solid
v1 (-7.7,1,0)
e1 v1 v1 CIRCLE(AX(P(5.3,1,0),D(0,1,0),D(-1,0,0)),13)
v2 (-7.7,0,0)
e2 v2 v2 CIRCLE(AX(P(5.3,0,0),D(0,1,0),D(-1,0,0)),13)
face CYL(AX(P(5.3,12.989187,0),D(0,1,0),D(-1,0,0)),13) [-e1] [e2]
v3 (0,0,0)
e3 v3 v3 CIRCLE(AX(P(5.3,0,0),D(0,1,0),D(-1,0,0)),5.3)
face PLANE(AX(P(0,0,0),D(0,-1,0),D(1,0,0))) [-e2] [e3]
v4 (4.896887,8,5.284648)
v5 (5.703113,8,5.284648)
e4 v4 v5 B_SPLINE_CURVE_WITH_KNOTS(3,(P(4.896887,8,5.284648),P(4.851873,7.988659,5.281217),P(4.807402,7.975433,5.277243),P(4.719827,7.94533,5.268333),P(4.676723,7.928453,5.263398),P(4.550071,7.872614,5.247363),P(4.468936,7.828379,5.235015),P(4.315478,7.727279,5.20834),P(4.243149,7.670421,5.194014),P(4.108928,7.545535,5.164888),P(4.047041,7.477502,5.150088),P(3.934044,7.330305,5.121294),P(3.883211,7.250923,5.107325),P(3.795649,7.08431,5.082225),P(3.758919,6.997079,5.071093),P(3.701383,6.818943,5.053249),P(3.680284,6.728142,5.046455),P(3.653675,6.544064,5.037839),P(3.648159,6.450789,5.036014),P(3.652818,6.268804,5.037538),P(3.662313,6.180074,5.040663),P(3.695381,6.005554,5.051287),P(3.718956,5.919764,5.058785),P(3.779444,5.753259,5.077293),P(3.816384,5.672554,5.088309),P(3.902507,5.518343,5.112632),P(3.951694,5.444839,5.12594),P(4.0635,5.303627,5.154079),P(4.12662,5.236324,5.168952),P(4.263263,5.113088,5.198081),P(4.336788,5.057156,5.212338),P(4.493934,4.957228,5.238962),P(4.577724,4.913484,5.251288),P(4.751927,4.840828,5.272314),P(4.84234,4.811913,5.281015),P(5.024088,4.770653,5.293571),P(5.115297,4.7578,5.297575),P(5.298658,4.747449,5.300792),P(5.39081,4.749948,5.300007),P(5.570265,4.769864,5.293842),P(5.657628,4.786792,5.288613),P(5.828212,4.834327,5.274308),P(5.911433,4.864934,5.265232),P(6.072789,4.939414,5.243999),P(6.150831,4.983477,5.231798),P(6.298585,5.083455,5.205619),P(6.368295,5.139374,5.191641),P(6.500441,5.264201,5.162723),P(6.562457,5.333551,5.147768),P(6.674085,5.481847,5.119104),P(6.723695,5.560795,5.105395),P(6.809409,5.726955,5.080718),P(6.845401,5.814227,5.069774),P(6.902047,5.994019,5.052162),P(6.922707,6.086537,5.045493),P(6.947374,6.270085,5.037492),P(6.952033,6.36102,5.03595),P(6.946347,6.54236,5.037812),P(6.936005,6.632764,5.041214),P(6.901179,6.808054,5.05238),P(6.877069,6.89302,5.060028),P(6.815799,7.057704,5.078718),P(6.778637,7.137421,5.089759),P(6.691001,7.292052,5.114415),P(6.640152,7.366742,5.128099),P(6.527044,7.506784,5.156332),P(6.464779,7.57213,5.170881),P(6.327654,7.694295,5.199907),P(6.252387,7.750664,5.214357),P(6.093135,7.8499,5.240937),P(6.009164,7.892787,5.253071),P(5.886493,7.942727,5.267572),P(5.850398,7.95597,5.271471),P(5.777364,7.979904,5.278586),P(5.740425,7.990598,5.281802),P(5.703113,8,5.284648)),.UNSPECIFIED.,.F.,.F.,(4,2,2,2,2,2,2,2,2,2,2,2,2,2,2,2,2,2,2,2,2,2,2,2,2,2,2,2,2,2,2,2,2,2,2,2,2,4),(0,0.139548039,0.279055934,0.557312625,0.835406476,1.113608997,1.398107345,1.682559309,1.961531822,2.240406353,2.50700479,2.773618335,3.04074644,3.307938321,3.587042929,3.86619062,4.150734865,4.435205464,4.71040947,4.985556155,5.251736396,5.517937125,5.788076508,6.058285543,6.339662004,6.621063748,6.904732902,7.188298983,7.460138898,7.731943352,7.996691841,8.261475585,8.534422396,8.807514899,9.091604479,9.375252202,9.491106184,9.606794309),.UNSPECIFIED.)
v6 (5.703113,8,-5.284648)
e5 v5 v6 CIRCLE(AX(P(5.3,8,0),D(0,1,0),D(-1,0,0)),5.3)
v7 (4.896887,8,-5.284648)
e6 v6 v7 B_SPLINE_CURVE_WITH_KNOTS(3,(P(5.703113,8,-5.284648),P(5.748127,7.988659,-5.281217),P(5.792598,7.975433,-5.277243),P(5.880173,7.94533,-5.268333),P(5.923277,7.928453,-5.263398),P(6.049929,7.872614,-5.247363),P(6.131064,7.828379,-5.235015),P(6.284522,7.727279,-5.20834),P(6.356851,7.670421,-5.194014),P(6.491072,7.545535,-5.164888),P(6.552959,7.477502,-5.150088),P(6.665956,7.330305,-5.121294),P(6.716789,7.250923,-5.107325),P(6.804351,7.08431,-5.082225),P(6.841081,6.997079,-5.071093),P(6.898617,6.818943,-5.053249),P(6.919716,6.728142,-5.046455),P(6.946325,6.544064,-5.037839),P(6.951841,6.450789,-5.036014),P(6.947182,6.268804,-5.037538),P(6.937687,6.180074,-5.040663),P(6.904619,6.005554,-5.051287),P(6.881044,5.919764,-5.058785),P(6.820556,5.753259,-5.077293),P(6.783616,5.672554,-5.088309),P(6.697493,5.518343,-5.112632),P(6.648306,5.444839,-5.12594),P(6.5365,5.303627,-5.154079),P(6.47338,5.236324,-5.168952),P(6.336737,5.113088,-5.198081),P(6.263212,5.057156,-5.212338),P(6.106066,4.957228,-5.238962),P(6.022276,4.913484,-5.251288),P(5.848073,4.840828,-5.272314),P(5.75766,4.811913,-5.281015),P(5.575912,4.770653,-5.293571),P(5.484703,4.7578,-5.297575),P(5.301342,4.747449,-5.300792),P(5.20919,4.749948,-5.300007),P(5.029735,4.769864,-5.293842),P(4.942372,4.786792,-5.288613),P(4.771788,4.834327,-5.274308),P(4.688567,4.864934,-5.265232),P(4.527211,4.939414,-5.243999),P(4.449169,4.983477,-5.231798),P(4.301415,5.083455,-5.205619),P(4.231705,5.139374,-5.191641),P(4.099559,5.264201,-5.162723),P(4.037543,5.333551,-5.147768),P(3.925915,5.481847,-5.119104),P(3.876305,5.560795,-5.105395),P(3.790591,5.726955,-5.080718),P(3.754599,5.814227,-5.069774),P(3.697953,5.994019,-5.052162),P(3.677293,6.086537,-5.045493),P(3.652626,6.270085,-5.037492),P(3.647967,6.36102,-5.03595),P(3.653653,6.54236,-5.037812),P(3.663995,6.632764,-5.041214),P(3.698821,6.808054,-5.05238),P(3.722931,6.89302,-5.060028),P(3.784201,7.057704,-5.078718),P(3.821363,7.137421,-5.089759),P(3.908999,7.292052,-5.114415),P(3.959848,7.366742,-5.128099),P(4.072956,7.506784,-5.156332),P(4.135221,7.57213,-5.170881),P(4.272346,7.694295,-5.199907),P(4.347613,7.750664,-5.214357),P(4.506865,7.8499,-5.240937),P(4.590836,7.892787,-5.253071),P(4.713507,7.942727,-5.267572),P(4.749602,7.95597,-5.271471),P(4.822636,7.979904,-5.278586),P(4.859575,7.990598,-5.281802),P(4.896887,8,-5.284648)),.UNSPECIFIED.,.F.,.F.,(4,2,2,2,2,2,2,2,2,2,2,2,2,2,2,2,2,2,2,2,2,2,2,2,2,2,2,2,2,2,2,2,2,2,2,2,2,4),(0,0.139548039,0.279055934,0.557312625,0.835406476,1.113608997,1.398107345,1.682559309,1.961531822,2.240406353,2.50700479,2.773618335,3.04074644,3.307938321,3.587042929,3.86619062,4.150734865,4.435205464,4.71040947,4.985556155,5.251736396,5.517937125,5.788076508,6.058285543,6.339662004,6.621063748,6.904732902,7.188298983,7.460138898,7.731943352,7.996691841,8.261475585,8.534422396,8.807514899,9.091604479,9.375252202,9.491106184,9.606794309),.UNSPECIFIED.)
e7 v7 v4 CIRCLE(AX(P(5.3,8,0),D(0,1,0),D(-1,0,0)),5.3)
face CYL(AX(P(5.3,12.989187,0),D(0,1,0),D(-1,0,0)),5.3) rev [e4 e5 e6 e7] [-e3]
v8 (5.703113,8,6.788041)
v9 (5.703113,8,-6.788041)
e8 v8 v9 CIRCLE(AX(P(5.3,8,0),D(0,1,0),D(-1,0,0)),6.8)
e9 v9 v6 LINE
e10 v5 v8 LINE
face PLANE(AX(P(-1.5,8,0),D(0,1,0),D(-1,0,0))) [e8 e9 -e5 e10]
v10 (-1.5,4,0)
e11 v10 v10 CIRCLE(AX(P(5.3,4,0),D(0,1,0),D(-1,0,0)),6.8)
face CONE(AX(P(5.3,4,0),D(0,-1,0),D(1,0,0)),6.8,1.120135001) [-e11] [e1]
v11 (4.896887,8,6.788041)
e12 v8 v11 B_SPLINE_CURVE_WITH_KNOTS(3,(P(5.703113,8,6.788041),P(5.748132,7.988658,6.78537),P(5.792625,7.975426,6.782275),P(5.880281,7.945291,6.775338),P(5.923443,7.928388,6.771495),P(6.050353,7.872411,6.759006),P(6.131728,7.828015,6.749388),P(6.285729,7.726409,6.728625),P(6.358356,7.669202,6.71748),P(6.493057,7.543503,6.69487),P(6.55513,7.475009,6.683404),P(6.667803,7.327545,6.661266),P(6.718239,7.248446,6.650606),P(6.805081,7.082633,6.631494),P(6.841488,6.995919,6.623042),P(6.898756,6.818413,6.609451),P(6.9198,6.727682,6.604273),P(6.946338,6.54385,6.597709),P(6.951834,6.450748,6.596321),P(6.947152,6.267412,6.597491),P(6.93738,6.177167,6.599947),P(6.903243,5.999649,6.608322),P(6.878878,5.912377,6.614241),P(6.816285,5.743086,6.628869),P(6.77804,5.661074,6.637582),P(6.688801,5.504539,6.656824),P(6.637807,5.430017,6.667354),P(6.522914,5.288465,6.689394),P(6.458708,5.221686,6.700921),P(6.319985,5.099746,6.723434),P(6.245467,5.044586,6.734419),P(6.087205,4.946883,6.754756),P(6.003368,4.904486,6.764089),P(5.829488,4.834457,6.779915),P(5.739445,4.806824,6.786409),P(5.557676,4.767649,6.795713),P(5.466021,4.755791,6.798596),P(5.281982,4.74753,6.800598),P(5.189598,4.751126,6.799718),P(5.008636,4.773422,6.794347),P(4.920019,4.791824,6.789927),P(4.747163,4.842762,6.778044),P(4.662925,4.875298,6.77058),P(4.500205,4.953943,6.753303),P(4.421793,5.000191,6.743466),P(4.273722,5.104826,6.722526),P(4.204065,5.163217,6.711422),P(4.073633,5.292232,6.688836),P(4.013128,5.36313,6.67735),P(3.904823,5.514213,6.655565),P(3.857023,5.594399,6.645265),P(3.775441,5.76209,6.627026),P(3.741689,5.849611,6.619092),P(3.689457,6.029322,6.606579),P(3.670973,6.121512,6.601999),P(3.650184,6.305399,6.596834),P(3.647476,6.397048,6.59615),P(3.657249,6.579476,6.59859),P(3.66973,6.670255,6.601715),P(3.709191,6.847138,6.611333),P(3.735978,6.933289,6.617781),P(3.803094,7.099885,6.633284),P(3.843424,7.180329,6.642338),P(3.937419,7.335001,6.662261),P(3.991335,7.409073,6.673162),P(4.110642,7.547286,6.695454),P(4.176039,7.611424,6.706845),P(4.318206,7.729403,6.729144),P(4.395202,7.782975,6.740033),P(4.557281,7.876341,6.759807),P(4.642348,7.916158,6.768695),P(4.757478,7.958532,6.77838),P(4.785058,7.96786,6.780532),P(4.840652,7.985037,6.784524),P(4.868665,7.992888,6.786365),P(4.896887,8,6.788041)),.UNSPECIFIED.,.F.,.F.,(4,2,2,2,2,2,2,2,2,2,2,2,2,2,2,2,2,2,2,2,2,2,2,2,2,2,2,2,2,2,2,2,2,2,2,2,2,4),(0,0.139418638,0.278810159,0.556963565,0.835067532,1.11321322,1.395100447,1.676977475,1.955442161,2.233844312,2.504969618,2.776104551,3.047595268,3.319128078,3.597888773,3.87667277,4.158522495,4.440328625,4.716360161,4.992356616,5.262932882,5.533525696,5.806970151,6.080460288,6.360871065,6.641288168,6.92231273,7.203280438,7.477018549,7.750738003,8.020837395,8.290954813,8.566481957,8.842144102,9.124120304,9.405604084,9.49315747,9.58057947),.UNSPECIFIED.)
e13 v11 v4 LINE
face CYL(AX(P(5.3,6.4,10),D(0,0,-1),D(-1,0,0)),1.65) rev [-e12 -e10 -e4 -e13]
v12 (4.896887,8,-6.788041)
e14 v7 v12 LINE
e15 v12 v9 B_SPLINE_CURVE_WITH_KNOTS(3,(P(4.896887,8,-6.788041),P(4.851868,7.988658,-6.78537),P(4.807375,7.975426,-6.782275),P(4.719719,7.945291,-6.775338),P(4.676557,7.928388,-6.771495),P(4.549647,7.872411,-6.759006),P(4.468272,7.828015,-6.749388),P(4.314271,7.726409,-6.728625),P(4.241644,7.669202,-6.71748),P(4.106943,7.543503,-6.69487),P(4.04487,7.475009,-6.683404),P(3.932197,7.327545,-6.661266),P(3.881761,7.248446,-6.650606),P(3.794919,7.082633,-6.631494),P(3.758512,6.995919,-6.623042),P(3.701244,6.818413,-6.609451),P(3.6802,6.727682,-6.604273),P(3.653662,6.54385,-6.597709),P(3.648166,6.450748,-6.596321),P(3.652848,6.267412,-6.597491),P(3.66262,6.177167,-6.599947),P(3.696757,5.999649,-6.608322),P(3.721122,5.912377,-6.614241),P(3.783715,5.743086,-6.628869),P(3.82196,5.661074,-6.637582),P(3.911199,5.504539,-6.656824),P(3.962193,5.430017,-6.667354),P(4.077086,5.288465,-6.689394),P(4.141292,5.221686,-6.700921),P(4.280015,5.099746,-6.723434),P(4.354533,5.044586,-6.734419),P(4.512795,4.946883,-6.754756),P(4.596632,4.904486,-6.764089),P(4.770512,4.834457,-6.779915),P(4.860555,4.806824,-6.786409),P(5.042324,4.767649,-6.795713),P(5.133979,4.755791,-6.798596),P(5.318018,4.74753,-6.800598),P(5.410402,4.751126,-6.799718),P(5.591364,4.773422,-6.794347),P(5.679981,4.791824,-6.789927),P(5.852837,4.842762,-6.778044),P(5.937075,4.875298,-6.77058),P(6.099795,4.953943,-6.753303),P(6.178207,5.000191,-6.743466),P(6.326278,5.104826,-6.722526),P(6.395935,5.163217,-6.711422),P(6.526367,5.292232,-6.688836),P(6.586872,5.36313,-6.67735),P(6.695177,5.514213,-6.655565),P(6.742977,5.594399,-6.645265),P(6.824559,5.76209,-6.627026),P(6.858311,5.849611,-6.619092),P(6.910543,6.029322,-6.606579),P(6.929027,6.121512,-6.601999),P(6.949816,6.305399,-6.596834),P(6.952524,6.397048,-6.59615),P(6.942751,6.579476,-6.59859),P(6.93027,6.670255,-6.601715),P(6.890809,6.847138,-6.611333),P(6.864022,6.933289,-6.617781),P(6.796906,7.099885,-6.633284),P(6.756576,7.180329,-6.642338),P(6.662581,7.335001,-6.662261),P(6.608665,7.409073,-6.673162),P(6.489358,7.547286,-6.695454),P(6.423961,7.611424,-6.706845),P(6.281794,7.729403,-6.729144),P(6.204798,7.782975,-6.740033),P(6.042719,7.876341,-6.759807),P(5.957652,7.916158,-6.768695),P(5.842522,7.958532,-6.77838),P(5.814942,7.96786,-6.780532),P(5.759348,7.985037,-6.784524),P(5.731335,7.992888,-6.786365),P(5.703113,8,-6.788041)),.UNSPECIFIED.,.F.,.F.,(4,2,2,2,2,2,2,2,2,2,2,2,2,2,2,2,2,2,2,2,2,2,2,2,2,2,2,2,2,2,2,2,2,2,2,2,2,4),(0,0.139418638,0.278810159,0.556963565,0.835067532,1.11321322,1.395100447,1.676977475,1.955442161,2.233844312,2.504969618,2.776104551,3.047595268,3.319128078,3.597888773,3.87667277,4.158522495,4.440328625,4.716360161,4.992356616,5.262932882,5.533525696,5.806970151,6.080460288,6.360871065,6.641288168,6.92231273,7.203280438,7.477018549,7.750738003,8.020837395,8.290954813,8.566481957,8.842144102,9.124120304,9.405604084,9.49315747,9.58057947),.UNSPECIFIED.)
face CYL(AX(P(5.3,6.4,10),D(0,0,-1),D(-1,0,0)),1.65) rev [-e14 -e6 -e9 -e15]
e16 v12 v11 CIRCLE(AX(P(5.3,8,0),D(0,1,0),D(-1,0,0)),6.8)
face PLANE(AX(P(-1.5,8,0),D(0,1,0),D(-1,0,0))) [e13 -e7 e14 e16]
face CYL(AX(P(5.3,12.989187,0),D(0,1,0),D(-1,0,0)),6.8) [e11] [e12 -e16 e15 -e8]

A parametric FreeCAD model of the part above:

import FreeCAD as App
import Part
import Sketcher
Q = App.Units.Quantity

doc = App.newDocument("Part")
body = doc.addObject("PartDesign::Body", "Body")

sketch1 = doc.addObject("Sketcher::SketchObject", "Sketch")
body.addObject(sketch1)
sketch1.AttachmentSupport = (doc.XY_Plane, [""])
sketch1.MapMode = "FlatFace"
sketch1.addGeometry(Part.LineSegment(App.Vector(-7.7, 0, 0), App.Vector(0, 0, 0)), False)
sketch1.addGeometry(Part.LineSegment(App.Vector(0, 0, 0), App.Vector(0, 8, 0)), False)
sketch1.addGeometry(Part.LineSegment(App.Vector(0, 8, 0), App.Vector(-1.5, 8, 0)), False)
sketch1.addGeometry(Part.LineSegment(App.Vector(-1.5, 8, 0), App.Vector(-1.5, 4, 0)), False)
sketch1.addGeometry(Part.LineSegment(App.Vector(-1.5, 4, 0), App.Vector(-7.7, 1, 0)), False)
sketch1.addGeometry(Part.LineSegment(App.Vector(-7.7, 1, 0), App.Vector(-7.7, 0, 0)), False)
sketch1.addGeometry(Part.LineSegment(App.Vector(5.3, 8, 0), App.Vector(5.3, 0, 0)), True)
sketch1.addConstraint(Sketcher.Constraint("Coincident", 0, 2, 1, 1))
sketch1.addConstraint(Sketcher.Constraint("Coincident", 1, 2, 2, 1))
sketch1.addConstraint(Sketcher.Constraint("Coincident", 2, 2, 3, 1))
sketch1.addConstraint(Sketcher.Constraint("Coincident", 3, 2, 4, 1))
sketch1.addConstraint(Sketcher.Constraint("Coincident", 4, 2, 5, 1))
sketch1.addConstraint(Sketcher.Constraint("Coincident", 5, 2, 0, 1))
sketch1.addConstraint(Sketcher.Constraint("Horizontal", 0))
sketch1.addConstraint(Sketcher.Constraint("Vertical", 1))
sketch1.addConstraint(Sketcher.Constraint("Horizontal", 2))
sketch1.addConstraint(Sketcher.Constraint("Vertical", 3))
sketch1.addConstraint(Sketcher.Constraint("Vertical", 5))
sketch1.addConstraint(Sketcher.Constraint("Vertical", 6))
sketch1.addConstraint(Sketcher.Constraint("Coincident", 0, 2, -1, 1))
sketch1.addConstraint(Sketcher.Constraint("PointOnObject", 6, 2, -1))
sketch1.addConstraint(Sketcher.Constraint("Horizontal", 2, 2, 6, 1))
sketch1.addConstraint(Sketcher.Constraint("DistanceY", 1, 1, 1, 2, Q("8 mm")))
sketch1.addConstraint(Sketcher.Constraint("DistanceY", 3, 2, 3, 1, Q("4 mm")))
sketch1.addConstraint(Sketcher.Constraint("DistanceY", 5, 2, 5, 1, Q("1 mm")))
sketch1.addConstraint(Sketcher.Constraint("DistanceX", 0, 1, 0, 2, Q("7.7 mm")))
sketch1.addConstraint(Sketcher.Constraint("DistanceX", 2, 2, 2, 1, Q("1.5 mm")))
sketch1.addConstraint(Sketcher.Constraint("DistanceX", 4, 2, 6, 1, Q("13 mm")))
revolution = doc.addObject("PartDesign::Revolution", "Revolution")
body.addObject(revolution)
revolution.Profile = sketch1
revolution.ReferenceAxis = (sketch1, ["Axis0"])
revolution.Angle = 360

sketch2 = doc.addObject("Sketcher::SketchObject", "Sketch001")
body.addObject(sketch2)
sketch2.AttachmentSupport = (doc.XY_Plane, [""])
sketch2.MapMode = "FlatFace"
sketch2.addGeometry(Part.Circle(App.Vector(5.3, 6.4, 0), App.Vector(0, 0, 1), 1.6), False)
sketch2.addConstraint(Sketcher.Constraint("Diameter", 0, Q("3.3 mm")))
sketch2.addConstraint(Sketcher.Constraint("DistanceX", -1, 1, 0, 3, Q("5.3 mm")))
sketch2.addConstraint(Sketcher.Constraint("DistanceY", -1, 1, 0, 3, Q("6.4 mm")))
pocket1 = doc.addObject("PartDesign::Pocket", "Pocket")
body.addObject(pocket1)
pocket1.Profile = sketch2
pocket1.Type = "ThroughAll"
pocket1.Midplane = True

doc.recompute()
